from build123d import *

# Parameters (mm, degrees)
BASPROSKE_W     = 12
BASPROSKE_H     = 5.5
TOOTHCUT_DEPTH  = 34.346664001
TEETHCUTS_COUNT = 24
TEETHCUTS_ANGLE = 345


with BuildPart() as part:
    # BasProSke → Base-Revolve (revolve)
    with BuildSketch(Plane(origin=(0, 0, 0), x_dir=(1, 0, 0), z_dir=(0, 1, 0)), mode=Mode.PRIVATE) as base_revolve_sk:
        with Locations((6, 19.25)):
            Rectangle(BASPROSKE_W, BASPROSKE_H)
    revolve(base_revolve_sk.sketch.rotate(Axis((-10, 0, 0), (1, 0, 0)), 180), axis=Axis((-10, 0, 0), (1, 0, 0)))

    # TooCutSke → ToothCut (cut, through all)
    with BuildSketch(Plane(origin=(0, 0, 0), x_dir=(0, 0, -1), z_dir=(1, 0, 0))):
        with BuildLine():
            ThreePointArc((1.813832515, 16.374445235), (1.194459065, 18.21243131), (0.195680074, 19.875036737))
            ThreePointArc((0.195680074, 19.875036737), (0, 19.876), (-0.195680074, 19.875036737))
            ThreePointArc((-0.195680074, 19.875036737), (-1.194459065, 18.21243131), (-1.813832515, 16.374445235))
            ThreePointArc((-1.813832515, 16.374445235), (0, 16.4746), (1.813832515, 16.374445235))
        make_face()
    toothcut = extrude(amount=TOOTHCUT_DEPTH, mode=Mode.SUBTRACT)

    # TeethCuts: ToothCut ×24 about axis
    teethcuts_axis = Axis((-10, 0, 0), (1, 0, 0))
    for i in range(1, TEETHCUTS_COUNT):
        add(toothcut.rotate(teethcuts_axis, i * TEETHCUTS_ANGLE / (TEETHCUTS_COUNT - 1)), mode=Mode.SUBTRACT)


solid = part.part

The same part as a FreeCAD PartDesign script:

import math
import FreeCAD as App
import Part
import Sketcher

doc = App.newDocument("Part")
body = doc.addObject("PartDesign::Body", "Body")

# Sketch on XZ plane
sketch1 = body.newObject("Sketcher::SketchObject", "Sketch")
sketch1.AttachmentSupport = (doc.getObject("XZ_Plane"), [""])
sketch1.MapMode = "FlatFace"
sketch1.addGeometry(Part.LineSegment(App.Vector(0, -22, 0), App.Vector(0, -16, 0)), False)
sketch1.addGeometry(Part.LineSegment(App.Vector(0, -16, 0), App.Vector(12, -16, 0)), False)
sketch1.addGeometry(Part.LineSegment(App.Vector(12, -16, 0), App.Vector(12, -22, 0)), False)
sketch1.addGeometry(Part.LineSegment(App.Vector(12, -22, 0), App.Vector(0, -22, 0)), False)
sketch1.addConstraint(Sketcher.Constraint("Coincident", 0, 2, 1, 1))
sketch1.addConstraint(Sketcher.Constraint("Coincident", 1, 2, 2, 1))
sketch1.addConstraint(Sketcher.Constraint("Coincident", 2, 2, 3, 1))
sketch1.addConstraint(Sketcher.Constraint("Coincident", 3, 2, 0, 1))
sketch1.addConstraint(Sketcher.Constraint("Vertical", 0))
sketch1.addConstraint(Sketcher.Constraint("Horizontal", 1))
sketch1.addConstraint(Sketcher.Constraint("Vertical", 2))
sketch1.addConstraint(Sketcher.Constraint("Horizontal", 3))
sketch1.addConstraint(Sketcher.Constraint("PointOnObject", 0, 2, -2))
sketch1.addConstraint(Sketcher.Constraint("DistanceX", 1, 1, 1, 2, 12.0))
sketch1.addConstraint(Sketcher.Constraint("DistanceY", 0, 1, 0, 2, 5.5))
sketch1.addConstraint(Sketcher.Constraint("DistanceY", 2, 2, -1, 1, 22.0))
revolution = body.newObject("PartDesign::Revolution", "Revolution")
revolution.Profile = sketch1
revolution.ReferenceAxis = (sketch1, ["H_Axis"])
revolution.Angle = 360

# Sketch on YZ plane
sketch2 = body.newObject("Sketcher::SketchObject", "Sketch001")
sketch2.AttachmentSupport = (doc.getObject("YZ_Plane"), [""])
sketch2.MapMode = "FlatFace"
sketch2.addGeometry(Part.ArcOfCircle(Part.Circle(App.Vector(14.44, 6.97, 0), App.Vector(0, 0, 1), 9), math.radians(-78), math.radians(-53)), False)
sketch2.addGeometry(Part.ArcOfCircle(Part.Circle(App.Vector(0, 0, 0), App.Vector(0, 0, 1), 19.88), math.radians(-0.56), math.radians(0.56)), False)
sketch2.addGeometry(Part.ArcOfCircle(Part.Circle(App.Vector(14.44, -6.97, 0), App.Vector(0, 0, 1), 9), math.radians(53), math.radians(78)), False)
sketch2.addGeometry(Part.ArcOfCircle(Part.Circle(App.Vector(0, 0, 0), App.Vector(0, 0, 1), 16.47), math.radians(-6.32), math.radians(6.32)), False)
sketch2.addConstraint(Sketcher.Constraint("Coincident", 0, 2, 1, 1))
sketch2.addConstraint(Sketcher.Constraint("Coincident", 1, 2, 2, 1))
sketch2.addConstraint(Sketcher.Constraint("Coincident", 2, 2, 3, 2))
sketch2.addConstraint(Sketcher.Constraint("Coincident", 3, 1, 0, 1))
sketch2.addConstraint(Sketcher.Constraint("Coincident", 1, 3, -1, 1))
sketch2.addConstraint(Sketcher.Constraint("Coincident", 3, 3, -1, 1))
sketch2.addConstraint(Sketcher.Constraint("Equal", 0, 2))
sketch2.addConstraint(Sketcher.Constraint("Symmetric", 0, 3, 2, 3, -1))
sketch2.addConstraint(Sketcher.Constraint("Radius", 0, 9.0))
sketch2.addConstraint(Sketcher.Constraint("Radius", 3, 16.4746))
sketch2.addConstraint(Sketcher.Constraint("Radius", 1, 19.875994))
sketch2.addConstraint(Sketcher.Constraint("DistanceX", -1, 1, 0, 3, 14.436109))
sketch2.addConstraint(Sketcher.Constraint("DistanceY", -1, 1, 0, 3, 6.974959))
pocket1 = body.newObject("PartDesign::Pocket", "Pocket")
pocket1.Profile = sketch2
pocket1.Type = "ThroughAll"
pocket1.Reversed = True
doc.recompute()

polarpattern = body.newObject("PartDesign::PolarPattern", "PolarPattern")
polarpattern.Originals = [pocket1]
polarpattern.Axis = (doc.getObject("X_Axis"), [""])
polarpattern.Angle = 360
polarpattern.Occurrences = 24
body.Tip = polarpattern

doc.recompute()
